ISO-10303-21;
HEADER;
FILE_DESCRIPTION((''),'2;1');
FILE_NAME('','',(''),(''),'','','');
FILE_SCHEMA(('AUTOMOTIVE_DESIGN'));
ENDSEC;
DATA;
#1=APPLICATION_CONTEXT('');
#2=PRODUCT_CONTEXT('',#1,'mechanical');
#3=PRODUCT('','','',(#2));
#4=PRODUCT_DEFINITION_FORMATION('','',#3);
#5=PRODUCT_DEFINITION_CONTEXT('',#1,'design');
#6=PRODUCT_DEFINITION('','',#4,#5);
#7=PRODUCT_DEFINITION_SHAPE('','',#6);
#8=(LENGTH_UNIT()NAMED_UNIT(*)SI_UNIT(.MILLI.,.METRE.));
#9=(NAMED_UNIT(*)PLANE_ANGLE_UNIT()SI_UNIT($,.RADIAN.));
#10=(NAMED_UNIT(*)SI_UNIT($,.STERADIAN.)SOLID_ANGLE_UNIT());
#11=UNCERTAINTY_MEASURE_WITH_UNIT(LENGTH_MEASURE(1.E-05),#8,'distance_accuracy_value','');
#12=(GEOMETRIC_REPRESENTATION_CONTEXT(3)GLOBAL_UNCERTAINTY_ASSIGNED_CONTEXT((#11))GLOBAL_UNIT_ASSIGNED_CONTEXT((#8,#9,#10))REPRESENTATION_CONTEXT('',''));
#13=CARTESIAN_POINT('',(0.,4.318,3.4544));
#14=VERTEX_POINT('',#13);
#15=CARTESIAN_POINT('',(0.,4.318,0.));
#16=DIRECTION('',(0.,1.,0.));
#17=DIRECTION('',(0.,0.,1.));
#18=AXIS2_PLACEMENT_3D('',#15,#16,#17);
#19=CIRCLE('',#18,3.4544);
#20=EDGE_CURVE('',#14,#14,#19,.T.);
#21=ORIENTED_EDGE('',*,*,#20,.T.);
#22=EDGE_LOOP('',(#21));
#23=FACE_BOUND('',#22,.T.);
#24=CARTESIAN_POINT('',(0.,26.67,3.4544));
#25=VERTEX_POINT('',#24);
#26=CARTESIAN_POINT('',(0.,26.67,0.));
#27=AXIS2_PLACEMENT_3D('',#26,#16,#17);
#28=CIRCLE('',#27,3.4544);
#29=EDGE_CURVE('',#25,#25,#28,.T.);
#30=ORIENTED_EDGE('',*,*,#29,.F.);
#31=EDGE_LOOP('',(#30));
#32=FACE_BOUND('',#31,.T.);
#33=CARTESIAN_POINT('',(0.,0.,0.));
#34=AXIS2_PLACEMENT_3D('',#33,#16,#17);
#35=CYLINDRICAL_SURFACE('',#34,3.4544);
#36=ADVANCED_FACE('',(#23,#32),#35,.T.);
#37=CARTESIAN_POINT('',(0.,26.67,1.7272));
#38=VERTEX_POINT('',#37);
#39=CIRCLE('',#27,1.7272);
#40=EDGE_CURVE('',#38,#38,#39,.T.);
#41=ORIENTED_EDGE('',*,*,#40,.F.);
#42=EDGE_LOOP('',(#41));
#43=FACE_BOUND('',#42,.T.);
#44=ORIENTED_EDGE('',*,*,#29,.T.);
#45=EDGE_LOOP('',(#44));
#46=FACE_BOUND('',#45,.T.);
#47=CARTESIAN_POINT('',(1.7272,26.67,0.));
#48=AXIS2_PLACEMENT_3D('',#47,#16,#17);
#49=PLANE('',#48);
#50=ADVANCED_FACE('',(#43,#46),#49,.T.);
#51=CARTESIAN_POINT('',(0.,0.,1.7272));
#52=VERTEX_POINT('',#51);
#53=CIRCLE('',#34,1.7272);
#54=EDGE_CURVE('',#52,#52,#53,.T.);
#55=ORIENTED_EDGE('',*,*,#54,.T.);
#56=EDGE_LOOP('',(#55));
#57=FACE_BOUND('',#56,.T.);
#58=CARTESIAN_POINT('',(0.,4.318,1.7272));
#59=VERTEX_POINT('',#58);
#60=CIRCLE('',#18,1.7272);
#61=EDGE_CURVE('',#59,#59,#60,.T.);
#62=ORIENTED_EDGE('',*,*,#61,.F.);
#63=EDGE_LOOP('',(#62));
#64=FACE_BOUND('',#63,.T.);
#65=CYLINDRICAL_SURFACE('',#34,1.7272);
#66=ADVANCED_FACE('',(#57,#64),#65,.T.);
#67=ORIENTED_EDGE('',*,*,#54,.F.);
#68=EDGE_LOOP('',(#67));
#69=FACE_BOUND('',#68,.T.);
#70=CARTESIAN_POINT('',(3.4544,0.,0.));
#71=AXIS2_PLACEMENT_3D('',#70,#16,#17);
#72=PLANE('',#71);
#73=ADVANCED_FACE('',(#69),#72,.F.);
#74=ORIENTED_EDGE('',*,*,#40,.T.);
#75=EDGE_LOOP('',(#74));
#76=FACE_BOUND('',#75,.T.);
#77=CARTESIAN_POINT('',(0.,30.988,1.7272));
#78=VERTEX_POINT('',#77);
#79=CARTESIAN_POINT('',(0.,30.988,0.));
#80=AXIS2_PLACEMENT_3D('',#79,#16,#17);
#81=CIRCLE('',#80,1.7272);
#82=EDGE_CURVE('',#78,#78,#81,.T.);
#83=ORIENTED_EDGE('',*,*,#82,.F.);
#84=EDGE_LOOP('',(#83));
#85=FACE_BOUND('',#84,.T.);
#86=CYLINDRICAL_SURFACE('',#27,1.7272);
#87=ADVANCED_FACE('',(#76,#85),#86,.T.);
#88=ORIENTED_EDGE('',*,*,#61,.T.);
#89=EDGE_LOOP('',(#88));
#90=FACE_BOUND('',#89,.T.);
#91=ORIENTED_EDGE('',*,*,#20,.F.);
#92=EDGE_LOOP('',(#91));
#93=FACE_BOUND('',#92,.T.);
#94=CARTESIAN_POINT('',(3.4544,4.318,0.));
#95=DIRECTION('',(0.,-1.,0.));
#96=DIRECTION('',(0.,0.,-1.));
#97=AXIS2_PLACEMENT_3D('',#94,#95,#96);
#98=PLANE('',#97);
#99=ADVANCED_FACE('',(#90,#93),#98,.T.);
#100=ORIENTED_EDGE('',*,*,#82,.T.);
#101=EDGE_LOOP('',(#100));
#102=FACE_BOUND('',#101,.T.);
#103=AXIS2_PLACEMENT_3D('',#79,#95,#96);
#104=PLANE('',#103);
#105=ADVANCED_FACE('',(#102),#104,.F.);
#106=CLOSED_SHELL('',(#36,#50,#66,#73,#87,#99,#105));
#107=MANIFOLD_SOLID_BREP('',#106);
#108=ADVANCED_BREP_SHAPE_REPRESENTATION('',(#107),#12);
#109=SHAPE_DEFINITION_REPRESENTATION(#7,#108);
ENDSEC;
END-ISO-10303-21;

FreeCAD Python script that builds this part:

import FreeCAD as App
import Part
import Sketcher
from FreeCAD import Vector
Q = App.Units.Quantity


def add_polygon(sketch, points):
    """Adds a closed chain of lines whose ends are joined by coincident constraints."""
    first, n = sketch.GeometryCount, len(points)
    for a, b in zip(points, points[1:] + points[:1]):
        sketch.addGeometry(Part.LineSegment(App.Vector(*a, 0), App.Vector(*b, 0)), False)
    for i in range(n):
        sketch.addConstraint(Sketcher.Constraint("Coincident", first + i, 2, first + (i + 1) % n, 1))

doc = App.newDocument("Part")
body = doc.addObject("PartDesign::Body", "Body")

# Sketch on XY plane
sketch1 = body.newObject("Sketcher::SketchObject", "Sketch")
sketch1.AttachmentSupport = (doc.getObject("XY_Plane"), [""])
sketch1.MapMode = "FlatFace"
add_polygon(sketch1, [(0, 31), (0, 0), (3.5, 0), (3.5, 31)])  # lines 0-3
sketch1.addConstraint([
    Sketcher.Constraint("Vertical", 0),
    Sketcher.Constraint("Horizontal", 1),
    Sketcher.Constraint("Vertical", 2),
    Sketcher.Constraint("Horizontal", 3),
    Sketcher.Constraint("Coincident", 0, 2, -1, 1),
    Sketcher.Constraint("DistanceY", 0, 2, 0, 1, Q("1.22 in")),
    Sketcher.Constraint("DistanceX", 1, 1, 1, 2, Q("0.136 in")),
])
revolution = body.newObject("PartDesign::Revolution", "Revolution")
revolution.Profile = sketch1
revolution.ReferenceAxis = (sketch1, ["V_Axis"])
revolution.Angle = 360

# Sketch on XY plane
sketch2 = body.newObject("Sketcher::SketchObject", "Sketch001")
sketch2.AttachmentSupport = (doc.getObject("XY_Plane"), [""])
sketch2.MapMode = "FlatFace"
add_polygon(sketch2, [(1.7, 4.3), (1.7, 0), (3.5, 0), (3.5, 4.3)])  # lines 0-3
sketch2.addConstraint([
    Sketcher.Constraint("Vertical", 0),
    Sketcher.Constraint("Horizontal", 1),
    Sketcher.Constraint("Vertical", 2),
    Sketcher.Constraint("Horizontal", 3),
    Sketcher.Constraint("PointOnObject", 0, 2, -1),
    Sketcher.Constraint("DistanceY", 0, 2, 0, 1, Q("0.17 in")),
    Sketcher.Constraint("DistanceX", 1, 1, 1, 2, Q("0.068 in")),
    Sketcher.Constraint("DistanceX", -1, 1, 0, 2, Q("0.068 in")),
])
groove = body.newObject("PartDesign::Groove", "Groove")
groove.Profile = sketch2
groove.ReferenceAxis = (sketch2, ["V_Axis"])
groove.Angle = 360

# Sketch on XY plane
sketch3 = body.newObject("Sketcher::SketchObject", "Sketch002")
sketch3.AttachmentSupport = (doc.getObject("XY_Plane"), [""])
sketch3.MapMode = "FlatFace"
add_polygon(sketch3, [(1.7, 31), (1.7, 26.7), (3.5, 26.7), (3.5, 31)])  # lines 0-3
sketch3.addConstraint([
    Sketcher.Constraint("Vertical", 0),
    Sketcher.Constraint("Horizontal", 1),
    Sketcher.Constraint("Vertical", 2),
    Sketcher.Constraint("Horizontal", 3),
    Sketcher.Constraint("DistanceY", 0, 2, 0, 1, Q("0.17 in")),
    Sketcher.Constraint("DistanceX", 1, 1, 1, 2, Q("0.068 in")),
    Sketcher.Constraint("DistanceY", -1, 1, 0, 2, Q("1.05 in")),
    Sketcher.Constraint("DistanceX", -1, 1, 0, 2, Q("0.068 in")),
])
groove2 = body.newObject("PartDesign::Groove", "Groove001")
groove2.Profile = sketch3
groove2.ReferenceAxis = (sketch3, ["V_Axis"])
groove2.Angle = 360

doc.recompute()
